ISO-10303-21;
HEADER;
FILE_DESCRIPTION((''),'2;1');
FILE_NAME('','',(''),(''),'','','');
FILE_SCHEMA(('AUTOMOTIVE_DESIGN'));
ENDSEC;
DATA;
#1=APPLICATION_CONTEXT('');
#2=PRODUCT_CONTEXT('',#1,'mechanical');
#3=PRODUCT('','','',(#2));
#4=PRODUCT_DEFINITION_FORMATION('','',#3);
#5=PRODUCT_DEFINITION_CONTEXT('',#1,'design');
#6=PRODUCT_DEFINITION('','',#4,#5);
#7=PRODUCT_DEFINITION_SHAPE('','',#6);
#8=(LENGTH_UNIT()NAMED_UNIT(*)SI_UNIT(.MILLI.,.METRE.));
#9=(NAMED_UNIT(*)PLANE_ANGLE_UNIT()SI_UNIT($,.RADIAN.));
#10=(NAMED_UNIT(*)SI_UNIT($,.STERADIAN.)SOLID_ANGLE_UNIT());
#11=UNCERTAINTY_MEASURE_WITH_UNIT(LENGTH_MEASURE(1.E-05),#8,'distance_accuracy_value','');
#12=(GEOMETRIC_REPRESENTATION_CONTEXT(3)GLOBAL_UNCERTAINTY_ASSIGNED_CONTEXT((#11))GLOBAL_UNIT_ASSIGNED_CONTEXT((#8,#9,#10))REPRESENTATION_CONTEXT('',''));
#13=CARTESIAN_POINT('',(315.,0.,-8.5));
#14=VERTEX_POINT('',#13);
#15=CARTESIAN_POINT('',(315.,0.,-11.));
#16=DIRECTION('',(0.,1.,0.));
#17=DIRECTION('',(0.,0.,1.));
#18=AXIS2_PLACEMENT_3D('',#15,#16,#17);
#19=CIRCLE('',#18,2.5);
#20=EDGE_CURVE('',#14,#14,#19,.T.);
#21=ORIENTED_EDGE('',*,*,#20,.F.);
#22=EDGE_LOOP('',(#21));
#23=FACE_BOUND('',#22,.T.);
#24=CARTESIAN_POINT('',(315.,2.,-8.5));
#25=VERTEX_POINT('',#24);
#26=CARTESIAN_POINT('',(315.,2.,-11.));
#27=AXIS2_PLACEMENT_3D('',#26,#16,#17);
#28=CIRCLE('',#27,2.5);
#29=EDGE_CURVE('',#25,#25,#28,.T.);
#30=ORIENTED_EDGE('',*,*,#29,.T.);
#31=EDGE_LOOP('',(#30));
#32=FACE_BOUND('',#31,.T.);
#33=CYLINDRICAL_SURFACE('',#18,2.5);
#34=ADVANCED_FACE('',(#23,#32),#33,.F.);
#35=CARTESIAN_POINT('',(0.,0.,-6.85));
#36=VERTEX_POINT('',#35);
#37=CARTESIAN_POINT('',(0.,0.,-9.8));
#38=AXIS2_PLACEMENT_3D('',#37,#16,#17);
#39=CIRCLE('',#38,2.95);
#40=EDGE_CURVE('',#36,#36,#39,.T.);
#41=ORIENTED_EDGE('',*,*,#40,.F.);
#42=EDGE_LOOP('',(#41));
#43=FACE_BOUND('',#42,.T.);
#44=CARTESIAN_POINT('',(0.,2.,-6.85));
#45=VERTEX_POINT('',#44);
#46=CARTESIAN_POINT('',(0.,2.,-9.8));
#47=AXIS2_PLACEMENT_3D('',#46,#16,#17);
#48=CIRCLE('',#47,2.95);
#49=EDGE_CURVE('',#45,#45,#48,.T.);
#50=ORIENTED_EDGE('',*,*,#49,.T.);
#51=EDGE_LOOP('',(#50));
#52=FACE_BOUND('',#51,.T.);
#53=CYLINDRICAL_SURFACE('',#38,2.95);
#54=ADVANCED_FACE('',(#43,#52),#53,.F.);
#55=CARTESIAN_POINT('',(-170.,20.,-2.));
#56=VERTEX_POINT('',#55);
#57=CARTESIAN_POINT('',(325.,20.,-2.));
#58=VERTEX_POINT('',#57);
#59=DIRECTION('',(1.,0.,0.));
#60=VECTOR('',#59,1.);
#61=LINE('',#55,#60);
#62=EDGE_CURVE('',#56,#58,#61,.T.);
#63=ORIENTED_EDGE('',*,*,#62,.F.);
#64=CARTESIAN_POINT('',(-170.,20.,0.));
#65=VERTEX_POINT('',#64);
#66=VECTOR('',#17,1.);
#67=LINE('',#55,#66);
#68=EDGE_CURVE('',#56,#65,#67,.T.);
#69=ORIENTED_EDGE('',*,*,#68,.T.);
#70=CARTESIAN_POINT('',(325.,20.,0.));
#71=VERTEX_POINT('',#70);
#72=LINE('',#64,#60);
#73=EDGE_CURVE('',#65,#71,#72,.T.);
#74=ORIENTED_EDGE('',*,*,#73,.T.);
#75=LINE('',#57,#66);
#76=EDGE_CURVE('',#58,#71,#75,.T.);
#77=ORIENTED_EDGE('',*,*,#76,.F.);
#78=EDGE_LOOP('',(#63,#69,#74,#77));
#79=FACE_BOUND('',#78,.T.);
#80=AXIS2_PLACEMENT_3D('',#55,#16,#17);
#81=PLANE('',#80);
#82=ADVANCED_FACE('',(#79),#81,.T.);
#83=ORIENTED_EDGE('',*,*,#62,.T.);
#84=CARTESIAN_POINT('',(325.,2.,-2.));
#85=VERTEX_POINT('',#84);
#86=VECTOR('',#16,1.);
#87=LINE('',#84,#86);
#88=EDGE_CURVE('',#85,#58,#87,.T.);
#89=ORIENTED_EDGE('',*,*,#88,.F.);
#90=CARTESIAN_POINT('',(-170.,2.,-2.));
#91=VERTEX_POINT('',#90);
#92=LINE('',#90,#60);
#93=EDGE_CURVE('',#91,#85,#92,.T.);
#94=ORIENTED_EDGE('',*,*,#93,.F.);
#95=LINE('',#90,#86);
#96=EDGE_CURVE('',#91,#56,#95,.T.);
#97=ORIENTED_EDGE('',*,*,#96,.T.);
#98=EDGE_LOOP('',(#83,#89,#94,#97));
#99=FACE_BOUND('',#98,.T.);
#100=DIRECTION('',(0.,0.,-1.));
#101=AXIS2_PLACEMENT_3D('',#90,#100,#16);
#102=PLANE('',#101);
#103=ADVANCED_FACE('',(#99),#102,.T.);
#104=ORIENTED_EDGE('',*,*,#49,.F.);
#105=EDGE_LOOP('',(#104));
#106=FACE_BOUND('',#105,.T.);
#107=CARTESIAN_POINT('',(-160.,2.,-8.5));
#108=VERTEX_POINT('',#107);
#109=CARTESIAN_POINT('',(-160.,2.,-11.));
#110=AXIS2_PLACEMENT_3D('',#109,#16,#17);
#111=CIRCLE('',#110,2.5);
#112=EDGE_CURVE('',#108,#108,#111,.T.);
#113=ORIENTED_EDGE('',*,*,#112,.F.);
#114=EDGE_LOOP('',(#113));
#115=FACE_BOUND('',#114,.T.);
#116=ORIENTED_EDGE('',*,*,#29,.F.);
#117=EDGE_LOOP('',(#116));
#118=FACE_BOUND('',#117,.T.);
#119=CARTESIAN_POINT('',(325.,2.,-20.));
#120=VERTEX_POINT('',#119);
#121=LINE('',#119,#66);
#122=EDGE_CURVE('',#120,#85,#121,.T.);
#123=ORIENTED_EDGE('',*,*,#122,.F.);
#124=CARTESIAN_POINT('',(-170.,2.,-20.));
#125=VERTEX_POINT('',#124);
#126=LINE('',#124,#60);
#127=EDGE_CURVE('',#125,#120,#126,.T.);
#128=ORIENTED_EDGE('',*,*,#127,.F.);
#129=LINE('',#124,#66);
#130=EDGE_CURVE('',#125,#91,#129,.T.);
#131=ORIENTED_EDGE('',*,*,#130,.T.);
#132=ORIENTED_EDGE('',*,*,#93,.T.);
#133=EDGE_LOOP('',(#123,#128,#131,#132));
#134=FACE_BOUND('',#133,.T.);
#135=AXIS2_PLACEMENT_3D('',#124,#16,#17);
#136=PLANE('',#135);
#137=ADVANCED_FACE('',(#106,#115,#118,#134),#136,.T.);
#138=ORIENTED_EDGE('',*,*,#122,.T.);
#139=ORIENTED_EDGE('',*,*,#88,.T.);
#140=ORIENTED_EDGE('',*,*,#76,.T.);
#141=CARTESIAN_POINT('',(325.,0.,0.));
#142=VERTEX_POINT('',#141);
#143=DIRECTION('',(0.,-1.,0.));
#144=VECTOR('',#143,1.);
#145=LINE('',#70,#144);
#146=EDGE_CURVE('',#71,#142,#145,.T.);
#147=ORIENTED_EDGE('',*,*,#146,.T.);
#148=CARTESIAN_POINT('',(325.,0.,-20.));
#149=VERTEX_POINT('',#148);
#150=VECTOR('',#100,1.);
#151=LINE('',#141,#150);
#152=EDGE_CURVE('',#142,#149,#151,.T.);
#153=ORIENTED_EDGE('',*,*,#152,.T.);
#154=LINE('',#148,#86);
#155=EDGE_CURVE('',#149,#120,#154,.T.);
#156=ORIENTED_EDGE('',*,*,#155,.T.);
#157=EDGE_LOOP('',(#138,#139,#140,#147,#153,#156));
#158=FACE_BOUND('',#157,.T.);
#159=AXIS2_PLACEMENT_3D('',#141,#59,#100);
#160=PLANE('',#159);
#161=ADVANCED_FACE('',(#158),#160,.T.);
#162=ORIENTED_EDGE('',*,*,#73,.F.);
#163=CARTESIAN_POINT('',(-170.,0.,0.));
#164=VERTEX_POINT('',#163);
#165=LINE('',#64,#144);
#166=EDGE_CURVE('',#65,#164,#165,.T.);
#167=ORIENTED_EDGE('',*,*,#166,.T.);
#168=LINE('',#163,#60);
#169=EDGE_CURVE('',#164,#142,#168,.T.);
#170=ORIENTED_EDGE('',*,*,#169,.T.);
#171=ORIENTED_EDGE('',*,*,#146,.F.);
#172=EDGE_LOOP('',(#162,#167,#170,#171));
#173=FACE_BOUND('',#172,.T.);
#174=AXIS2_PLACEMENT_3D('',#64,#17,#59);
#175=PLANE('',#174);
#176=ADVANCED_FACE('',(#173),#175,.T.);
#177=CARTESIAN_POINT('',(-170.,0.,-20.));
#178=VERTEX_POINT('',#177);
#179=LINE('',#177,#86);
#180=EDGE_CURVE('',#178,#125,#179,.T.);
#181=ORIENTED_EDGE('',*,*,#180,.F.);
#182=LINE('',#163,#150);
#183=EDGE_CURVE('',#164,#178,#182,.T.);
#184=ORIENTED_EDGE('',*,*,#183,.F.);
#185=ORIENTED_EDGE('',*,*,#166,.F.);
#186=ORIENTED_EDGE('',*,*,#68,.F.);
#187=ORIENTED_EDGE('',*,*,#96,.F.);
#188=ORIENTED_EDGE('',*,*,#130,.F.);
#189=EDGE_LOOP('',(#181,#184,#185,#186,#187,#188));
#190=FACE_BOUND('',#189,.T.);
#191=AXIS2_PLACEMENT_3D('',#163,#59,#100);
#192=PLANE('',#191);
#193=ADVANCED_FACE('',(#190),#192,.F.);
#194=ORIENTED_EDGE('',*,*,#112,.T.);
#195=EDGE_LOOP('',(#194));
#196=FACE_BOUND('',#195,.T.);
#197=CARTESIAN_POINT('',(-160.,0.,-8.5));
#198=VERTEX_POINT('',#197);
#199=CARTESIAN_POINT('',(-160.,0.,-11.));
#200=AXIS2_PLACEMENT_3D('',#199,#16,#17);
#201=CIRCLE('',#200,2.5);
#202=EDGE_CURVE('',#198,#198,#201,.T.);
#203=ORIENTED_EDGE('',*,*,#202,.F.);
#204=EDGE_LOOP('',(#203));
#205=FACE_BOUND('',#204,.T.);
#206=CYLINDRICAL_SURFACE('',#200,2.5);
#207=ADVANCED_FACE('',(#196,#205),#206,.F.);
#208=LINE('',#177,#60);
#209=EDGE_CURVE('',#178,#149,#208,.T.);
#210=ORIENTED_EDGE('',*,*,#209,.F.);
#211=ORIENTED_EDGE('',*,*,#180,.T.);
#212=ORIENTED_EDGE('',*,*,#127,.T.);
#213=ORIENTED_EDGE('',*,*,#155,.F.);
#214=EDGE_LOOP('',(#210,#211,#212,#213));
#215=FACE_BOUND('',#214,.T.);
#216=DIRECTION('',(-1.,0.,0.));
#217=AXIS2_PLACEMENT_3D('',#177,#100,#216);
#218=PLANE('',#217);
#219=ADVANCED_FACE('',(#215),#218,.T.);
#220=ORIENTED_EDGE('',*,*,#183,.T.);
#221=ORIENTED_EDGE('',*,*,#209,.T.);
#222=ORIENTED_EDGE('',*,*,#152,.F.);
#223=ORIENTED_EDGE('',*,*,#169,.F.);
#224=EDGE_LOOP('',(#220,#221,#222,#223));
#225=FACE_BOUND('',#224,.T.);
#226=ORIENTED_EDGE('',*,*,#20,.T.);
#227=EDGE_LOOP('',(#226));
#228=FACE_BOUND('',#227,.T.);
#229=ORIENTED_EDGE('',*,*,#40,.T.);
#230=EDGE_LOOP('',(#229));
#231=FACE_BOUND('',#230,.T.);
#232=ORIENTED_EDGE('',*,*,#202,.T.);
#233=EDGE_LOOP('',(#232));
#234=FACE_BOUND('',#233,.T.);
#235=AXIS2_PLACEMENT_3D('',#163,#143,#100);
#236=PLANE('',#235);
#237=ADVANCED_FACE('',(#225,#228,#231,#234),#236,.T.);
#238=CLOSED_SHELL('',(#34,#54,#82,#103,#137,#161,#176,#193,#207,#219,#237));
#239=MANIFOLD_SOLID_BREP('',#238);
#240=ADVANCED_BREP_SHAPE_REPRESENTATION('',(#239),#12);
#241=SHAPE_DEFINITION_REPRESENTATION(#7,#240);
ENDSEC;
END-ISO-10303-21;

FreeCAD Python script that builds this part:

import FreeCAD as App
import Part
import Sketcher
from FreeCAD import Vector
Q = App.Units.Quantity

doc = App.newDocument("Part")
body = doc.addObject("PartDesign::Body", "Body")

# Sketch on YZ plane
sketch1 = body.newObject("Sketcher::SketchObject", "Sketch")
sketch1.AttachmentSupport = (doc.getObject("YZ_Plane"), [""])
sketch1.MapMode = "FlatFace"
sketch1.addGeometry(Part.LineSegment(Vector(20, 0, 0), Vector(0, 0, 0)), False)
sketch1.addGeometry(Part.LineSegment(Vector(0, 0, 0), Vector(0, -20, 0)), False)
sketch1.addGeometry(Part.LineSegment(Vector(0, -20, 0), Vector(2, -20, 0)), False)
sketch1.addGeometry(Part.LineSegment(Vector(2, -20, 0), Vector(2, -2, 0)), False)
sketch1.addGeometry(Part.LineSegment(Vector(2, -2, 0), Vector(20, -2, 0)), False)
sketch1.addGeometry(Part.LineSegment(Vector(20, -2, 0), Vector(20, 0, 0)), False)
sketch1.addConstraint(Sketcher.Constraint("Coincident", 0, 2, 1, 1))
sketch1.addConstraint(Sketcher.Constraint("Coincident", 1, 2, 2, 1))
sketch1.addConstraint(Sketcher.Constraint("Coincident", 2, 2, 3, 1))
sketch1.addConstraint(Sketcher.Constraint("Coincident", 3, 2, 4, 1))
sketch1.addConstraint(Sketcher.Constraint("Coincident", 4, 2, 5, 1))
sketch1.addConstraint(Sketcher.Constraint("Coincident", 5, 2, 0, 1))
sketch1.addConstraint(Sketcher.Constraint("Horizontal", 0))
sketch1.addConstraint(Sketcher.Constraint("Vertical", 1))
sketch1.addConstraint(Sketcher.Constraint("Horizontal", 2))
sketch1.addConstraint(Sketcher.Constraint("Vertical", 3))
sketch1.addConstraint(Sketcher.Constraint("Horizontal", 4))
sketch1.addConstraint(Sketcher.Constraint("Vertical", 5))
sketch1.addConstraint(Sketcher.Constraint("Coincident", 0, 2, -1, 1))
sketch1.addConstraint(Sketcher.Constraint("Equal", 0, 1))
sketch1.addConstraint(Sketcher.Constraint("Equal", 4, 3))
sketch1.addConstraint(Sketcher.Constraint("DistanceX", 0, 2, 0, 1, Q("20 mm")))
sketch1.addConstraint(Sketcher.Constraint("DistanceX", 2, 1, 2, 2, Q("2 mm")))
pad1 = body.newObject("PartDesign::Pad", "Pad")
pad1.Profile = sketch1
pad1.Type = "TwoLengths"
pad1.Length = 325
pad1.Length2 = 170

# Sketch on XZ plane
sketch2 = body.newObject("Sketcher::SketchObject", "Sketch001")
sketch2.AttachmentSupport = (doc.getObject("XZ_Plane"), [""])
sketch2.MapMode = "FlatFace"
sketch2.AttachmentOffset = App.Placement(Vector(0, 0, -2), App.Rotation())
sketch2.addGeometry(Part.Circle(Vector(0, -9.8, 0), Vector(0, 0, 1), 3), False)
sketch2.addGeometry(Part.Circle(Vector(315, -11, 0), Vector(0, 0, 1), 2.5), False)
sketch2.addGeometry(Part.Circle(Vector(-160, -11, 0), Vector(0, 0, 1), 2.5), False)
sketch2.addConstraint(Sketcher.Constraint("Equal", 1, 2))
sketch2.addConstraint(Sketcher.Constraint("PointOnObject", 0, 3, -2))
sketch2.addConstraint(Sketcher.Constraint("Horizontal", 1, 3, 2, 3))
sketch2.addConstraint(Sketcher.Constraint("Diameter", 1, Q("5 mm")))
sketch2.addConstraint(Sketcher.Constraint("Diameter", 0, Q("5.9 mm")))
sketch2.addConstraint(Sketcher.Constraint("DistanceX", -1, 1, 1, 3, Q("315 mm")))
sketch2.addConstraint(Sketcher.Constraint("DistanceY", 1, 3, -1, 1, Q("11 mm")))
sketch2.addConstraint(Sketcher.Constraint("DistanceX", 2, 3, -1, 1, Q("160 mm")))
sketch2.addConstraint(Sketcher.Constraint("DistanceY", 0, 3, -1, 1, Q("9.8 mm")))
pocket1 = body.newObject("PartDesign::Pocket", "Pocket")
pocket1.Profile = sketch2
pocket1.Length = 2
pocket1.Reversed = True

doc.recompute()
